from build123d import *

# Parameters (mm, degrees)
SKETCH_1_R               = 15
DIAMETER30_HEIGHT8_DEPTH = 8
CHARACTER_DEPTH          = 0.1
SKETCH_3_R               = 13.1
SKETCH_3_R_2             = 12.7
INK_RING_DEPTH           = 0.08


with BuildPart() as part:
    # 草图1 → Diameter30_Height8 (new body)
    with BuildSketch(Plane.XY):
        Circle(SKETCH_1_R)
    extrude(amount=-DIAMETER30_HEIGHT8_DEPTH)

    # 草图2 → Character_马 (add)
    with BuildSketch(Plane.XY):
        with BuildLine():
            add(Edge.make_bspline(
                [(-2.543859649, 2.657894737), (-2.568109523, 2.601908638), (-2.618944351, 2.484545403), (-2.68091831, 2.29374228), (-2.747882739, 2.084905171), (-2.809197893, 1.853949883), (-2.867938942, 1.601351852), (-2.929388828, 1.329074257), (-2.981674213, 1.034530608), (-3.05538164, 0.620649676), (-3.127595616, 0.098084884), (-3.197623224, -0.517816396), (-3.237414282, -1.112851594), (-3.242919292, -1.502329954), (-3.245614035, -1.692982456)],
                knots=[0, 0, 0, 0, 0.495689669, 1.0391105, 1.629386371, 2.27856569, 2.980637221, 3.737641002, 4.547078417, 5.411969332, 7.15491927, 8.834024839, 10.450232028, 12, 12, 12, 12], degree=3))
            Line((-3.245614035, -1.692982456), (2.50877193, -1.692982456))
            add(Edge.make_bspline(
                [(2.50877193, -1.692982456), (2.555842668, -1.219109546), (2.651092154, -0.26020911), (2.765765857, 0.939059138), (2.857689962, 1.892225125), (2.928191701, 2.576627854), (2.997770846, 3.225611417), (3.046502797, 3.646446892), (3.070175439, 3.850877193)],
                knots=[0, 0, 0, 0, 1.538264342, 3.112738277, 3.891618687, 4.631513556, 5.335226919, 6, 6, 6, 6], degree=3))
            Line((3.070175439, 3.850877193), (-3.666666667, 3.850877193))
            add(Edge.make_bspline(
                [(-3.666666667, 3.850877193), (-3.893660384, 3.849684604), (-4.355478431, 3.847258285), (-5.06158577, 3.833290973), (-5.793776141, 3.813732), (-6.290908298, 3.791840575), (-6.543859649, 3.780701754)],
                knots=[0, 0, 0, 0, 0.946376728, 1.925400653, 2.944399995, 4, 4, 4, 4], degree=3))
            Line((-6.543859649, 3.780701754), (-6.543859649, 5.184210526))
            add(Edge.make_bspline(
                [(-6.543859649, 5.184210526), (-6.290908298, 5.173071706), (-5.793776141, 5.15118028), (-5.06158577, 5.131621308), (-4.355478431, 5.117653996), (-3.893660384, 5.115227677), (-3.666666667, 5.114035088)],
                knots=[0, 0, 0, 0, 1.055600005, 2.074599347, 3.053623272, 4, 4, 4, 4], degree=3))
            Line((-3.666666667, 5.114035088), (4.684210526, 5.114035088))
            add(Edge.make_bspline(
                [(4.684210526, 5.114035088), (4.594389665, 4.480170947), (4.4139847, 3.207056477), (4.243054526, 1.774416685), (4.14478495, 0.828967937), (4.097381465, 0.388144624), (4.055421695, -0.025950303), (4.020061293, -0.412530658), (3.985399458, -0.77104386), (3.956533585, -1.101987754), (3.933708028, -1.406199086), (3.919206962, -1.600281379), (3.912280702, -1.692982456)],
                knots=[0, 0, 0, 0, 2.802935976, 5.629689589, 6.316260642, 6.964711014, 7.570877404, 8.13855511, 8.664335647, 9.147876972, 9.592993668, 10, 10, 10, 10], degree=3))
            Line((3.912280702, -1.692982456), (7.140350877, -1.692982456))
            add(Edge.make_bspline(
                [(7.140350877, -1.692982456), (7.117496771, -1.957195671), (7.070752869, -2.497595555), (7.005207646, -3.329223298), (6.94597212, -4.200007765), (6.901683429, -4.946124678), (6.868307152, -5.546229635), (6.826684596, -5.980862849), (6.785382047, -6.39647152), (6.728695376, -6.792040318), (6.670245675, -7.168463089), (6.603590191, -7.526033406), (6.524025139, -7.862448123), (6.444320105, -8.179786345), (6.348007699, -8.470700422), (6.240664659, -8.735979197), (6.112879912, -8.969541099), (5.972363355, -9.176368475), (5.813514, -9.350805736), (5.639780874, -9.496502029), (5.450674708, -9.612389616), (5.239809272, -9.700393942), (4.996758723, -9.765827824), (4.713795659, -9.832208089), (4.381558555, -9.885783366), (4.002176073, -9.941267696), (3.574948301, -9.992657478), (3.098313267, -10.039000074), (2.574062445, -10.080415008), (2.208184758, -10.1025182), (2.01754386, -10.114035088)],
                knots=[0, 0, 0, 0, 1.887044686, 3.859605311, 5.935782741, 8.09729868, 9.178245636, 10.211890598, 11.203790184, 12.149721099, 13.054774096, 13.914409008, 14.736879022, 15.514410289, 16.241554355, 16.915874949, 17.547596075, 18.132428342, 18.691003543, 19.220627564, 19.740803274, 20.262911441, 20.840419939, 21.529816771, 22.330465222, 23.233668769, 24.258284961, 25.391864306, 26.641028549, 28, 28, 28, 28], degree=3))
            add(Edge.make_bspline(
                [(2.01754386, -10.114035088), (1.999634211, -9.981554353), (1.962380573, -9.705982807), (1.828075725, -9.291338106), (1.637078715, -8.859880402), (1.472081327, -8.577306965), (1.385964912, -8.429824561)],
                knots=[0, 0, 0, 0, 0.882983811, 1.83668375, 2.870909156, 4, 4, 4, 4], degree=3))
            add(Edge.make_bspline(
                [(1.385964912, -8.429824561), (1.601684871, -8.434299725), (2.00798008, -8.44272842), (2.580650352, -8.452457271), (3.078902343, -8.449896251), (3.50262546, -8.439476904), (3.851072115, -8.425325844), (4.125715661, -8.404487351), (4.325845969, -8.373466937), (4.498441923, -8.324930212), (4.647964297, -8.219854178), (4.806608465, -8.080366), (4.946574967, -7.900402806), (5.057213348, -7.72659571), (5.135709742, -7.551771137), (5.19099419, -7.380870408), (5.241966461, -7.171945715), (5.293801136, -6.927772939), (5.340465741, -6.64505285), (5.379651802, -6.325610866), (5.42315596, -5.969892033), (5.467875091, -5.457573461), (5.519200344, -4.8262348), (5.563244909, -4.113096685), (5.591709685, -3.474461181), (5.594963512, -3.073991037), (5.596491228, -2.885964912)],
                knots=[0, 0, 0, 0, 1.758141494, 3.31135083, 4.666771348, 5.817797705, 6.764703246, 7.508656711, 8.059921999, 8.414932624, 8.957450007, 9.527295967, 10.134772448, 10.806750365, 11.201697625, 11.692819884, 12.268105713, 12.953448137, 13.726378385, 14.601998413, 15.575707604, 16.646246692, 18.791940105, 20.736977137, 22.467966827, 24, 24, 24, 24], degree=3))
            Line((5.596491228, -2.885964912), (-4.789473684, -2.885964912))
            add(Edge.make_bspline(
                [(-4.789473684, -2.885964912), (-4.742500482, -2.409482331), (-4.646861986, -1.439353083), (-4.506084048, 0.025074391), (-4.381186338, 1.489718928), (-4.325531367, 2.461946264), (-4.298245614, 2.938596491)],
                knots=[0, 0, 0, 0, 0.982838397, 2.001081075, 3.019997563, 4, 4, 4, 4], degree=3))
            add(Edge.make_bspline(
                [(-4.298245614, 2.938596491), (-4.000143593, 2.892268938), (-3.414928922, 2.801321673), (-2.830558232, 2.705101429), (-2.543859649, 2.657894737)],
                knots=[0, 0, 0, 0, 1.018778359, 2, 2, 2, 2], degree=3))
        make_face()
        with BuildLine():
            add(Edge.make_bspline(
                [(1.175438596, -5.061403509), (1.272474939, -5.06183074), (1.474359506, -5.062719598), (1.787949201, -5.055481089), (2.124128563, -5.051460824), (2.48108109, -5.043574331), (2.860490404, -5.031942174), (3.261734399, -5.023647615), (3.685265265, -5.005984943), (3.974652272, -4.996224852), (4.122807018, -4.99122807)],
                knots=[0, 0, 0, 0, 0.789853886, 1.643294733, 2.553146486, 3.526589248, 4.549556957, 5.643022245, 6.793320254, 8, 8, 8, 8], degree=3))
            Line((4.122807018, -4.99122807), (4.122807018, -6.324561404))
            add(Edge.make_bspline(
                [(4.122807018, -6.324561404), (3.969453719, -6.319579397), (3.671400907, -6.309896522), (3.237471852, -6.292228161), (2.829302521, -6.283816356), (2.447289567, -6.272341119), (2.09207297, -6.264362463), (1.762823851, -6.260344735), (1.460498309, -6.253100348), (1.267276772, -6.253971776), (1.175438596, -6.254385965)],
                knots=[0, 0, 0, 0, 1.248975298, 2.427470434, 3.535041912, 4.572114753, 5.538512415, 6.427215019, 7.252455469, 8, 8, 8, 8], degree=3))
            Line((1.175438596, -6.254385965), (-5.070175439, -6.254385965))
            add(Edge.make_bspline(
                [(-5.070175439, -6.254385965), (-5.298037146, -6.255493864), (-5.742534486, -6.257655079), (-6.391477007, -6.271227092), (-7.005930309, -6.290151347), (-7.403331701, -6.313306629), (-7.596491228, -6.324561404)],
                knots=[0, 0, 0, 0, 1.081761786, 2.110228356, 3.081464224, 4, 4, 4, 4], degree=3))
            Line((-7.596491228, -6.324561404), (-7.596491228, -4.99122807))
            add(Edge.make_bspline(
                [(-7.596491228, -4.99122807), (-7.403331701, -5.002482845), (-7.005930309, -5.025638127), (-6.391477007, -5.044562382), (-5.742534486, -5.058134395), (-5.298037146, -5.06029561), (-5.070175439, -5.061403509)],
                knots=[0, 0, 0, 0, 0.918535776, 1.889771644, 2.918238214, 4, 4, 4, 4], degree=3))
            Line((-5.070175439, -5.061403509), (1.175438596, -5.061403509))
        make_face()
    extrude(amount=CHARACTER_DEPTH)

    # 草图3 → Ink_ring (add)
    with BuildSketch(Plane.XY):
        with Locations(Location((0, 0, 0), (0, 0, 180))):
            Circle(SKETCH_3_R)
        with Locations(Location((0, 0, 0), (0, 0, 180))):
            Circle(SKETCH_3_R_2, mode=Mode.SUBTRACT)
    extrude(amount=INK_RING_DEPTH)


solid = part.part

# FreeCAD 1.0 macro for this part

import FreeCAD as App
import Part
import Sketcher

V = App.Vector

doc = App.newDocument("Part")
body = doc.addObject("PartDesign::Body", "Body")

# Sketch on XY plane
sketch1 = body.newObject("Sketcher::SketchObject", "Sketch")
sketch1.AttachmentSupport = (doc.getObject("XY_Plane"), [""])
sketch1.MapMode = "FlatFace"
sketch1.addGeometry(Part.Circle(V(0, 0, 0), V(0, 0, 1), 15), False)
sketch1.addConstraint(Sketcher.Constraint("Coincident", 0, 3, -1, 1))
sketch1.addConstraint(Sketcher.Constraint("Diameter", 0, 30.0))
pad1 = body.newObject("PartDesign::Pad", "Pad")
pad1.Profile = sketch1
pad1.Length = 8
pad1.Reversed = True

# Sketch on XY plane
sketch2 = body.newObject("Sketcher::SketchObject", "Sketch001")
sketch2.AttachmentSupport = (doc.getObject("XY_Plane"), [""])
sketch2.MapMode = "FlatFace"
sketch2.addGeometry(Part.BSplineCurve([V(-2.54386, 2.657895, 0), V(-2.56811, 2.601909, 0), V(-2.618944, 2.484545, 0), V(-2.680918, 2.293742, 0), V(-2.747883, 2.084905, 0), V(-2.809198, 1.85395, 0), V(-2.867939, 1.601352, 0), V(-2.929389, 1.329074, 0), V(-2.981674, 1.034531, 0), V(-3.055382, 0.62065, 0), V(-3.127596, 0.098085, 0), V(-3.197623, -0.517816, 0), V(-3.237414, -1.112852, 0), V(-3.242919, -1.50233, 0), V(-3.245614, -1.692982, 0)], [4, 1, 1, 1, 1, 1, 1, 1, 1, 1, 1, 1, 4], [0, 0.495689669, 1.0391105, 1.629386371, 2.27856569, 2.980637221, 3.737641002, 4.547078417, 5.411969332, 7.15491927, 8.834024839, 10.450232028, 12], False, 3, [1, 1, 1, 1, 1, 1, 1, 1, 1, 1, 1, 1, 1, 1, 1], False), False)
sketch2.addGeometry(Part.BSplineCurve([V(-4.298246, 2.938596, 0), V(-4.000144, 2.892269, 0), V(-3.414929, 2.801322, 0), V(-2.830558, 2.705101, 0), V(-2.54386, 2.657895, 0)], [4, 1, 4], [0, 1.018778359, 2], False, 3, [1, 1, 1, 1, 1], False), False)
sketch2.addGeometry(Part.BSplineCurve([V(-4.789474, -2.885965, 0), V(-4.7425, -2.409482, 0), V(-4.646862, -1.439353, 0), V(-4.506084, 0.025074, 0), V(-4.381186, 1.489719, 0), V(-4.325531, 2.461946, 0), V(-4.298246, 2.938596, 0)], [4, 1, 1, 1, 4], [0, 0.982838397, 2.001081075, 3.019997563, 4], False, 3, [1, 1, 1, 1, 1, 1, 1], False), False)
sketch2.addGeometry(Part.LineSegment(V(-4.789474, -2.885965, 0), V(5.596491, -2.885965, 0)), False)
sketch2.addGeometry(Part.BSplineCurve([V(1.385965, -8.429825, 0), V(1.601685, -8.4343, 0), V(2.00798, -8.442728, 0), V(2.58065, -8.452457, 0), V(3.078902, -8.449896, 0), V(3.502625, -8.439477, 0), V(3.851072, -8.425326, 0), V(4.125716, -8.404487, 0), V(4.325846, -8.373467, 0), V(4.498442, -8.32493, 0), V(4.647964, -8.219854, 0), V(4.806608, -8.080366, 0), V(4.946575, -7.900403, 0), V(5.057213, -7.726596, 0), V(5.13571, -7.551771, 0), V(5.190994, -7.38087, 0), V(5.241966, -7.171946, 0), V(5.293801, -6.927773, 0), V(5.340466, -6.645053, 0), V(5.379652, -6.325611, 0), V(5.423156, -5.969892, 0), V(5.467875, -5.457573, 0), V(5.5192, -4.826235, 0), V(5.563245, -4.113097, 0), V(5.59171, -3.474461, 0), V(5.594964, -3.073991, 0), V(5.596491, -2.885965, 0)], [4, 1, 1, 1, 1, 1, 1, 1, 1, 1, 1, 1, 1, 1, 1, 1, 1, 1, 1, 1, 1, 1, 1, 1, 4], [0, 1.758141494, 3.31135083, 4.666771348, 5.817797705, 6.764703246, 7.508656711, 8.059921999, 8.414932624, 8.957450007, 9.527295967, 10.134772448, 10.806750365, 11.201697625, 11.692819884, 12.268105713, 12.953448137, 13.726378385, 14.601998413, 15.575707604, 16.646246692, 18.791940105, 20.736977137, 22.467966827, 24], False, 3, [1, 1, 1, 1, 1, 1, 1, 1, 1, 1, 1, 1, 1, 1, 1, 1, 1, 1, 1, 1, 1, 1, 1, 1, 1, 1, 1], False), False)
sketch2.addGeometry(Part.BSplineCurve([V(2.017544, -10.114035, 0), V(1.999634, -9.981554, 0), V(1.962381, -9.705983, 0), V(1.828076, -9.291338, 0), V(1.637079, -8.85988, 0), V(1.472081, -8.577307, 0), V(1.385965, -8.429825, 0)], [4, 1, 1, 1, 4], [0, 0.882983811, 1.83668375, 2.870909156, 4], False, 3, [1, 1, 1, 1, 1, 1, 1], False), False)
sketch2.addGeometry(Part.BSplineCurve([V(7.140351, -1.692982, 0), V(7.117497, -1.957196, 0), V(7.070753, -2.497596, 0), V(7.005208, -3.329223, 0), V(6.945972, -4.200008, 0), V(6.901683, -4.946125, 0), V(6.868307, -5.54623, 0), V(6.826685, -5.980863, 0), V(6.785382, -6.396472, 0), V(6.728695, -6.79204, 0), V(6.670246, -7.168463, 0), V(6.60359, -7.526033, 0), V(6.524025, -7.862448, 0), V(6.44432, -8.179786, 0), V(6.348008, -8.4707, 0), V(6.240665, -8.735979, 0), V(6.11288, -8.969541, 0), V(5.972363, -9.176368, 0), V(5.813514, -9.350806, 0), V(5.639781, -9.496502, 0), V(5.450675, -9.61239, 0), V(5.239809, -9.700394, 0), V(4.996759, -9.765828, 0), V(4.713796, -9.832208, 0), V(4.381559, -9.885783, 0), V(4.002176, -9.941268, 0), V(3.574948, -9.992657, 0), V(3.098313, -10.039, 0), V(2.574062, -10.080415, 0), V(2.208185, -10.102518, 0), V(2.017544, -10.114035, 0)], [4, 1, 1, 1, 1, 1, 1, 1, 1, 1, 1, 1, 1, 1, 1, 1, 1, 1, 1, 1, 1, 1, 1, 1, 1, 1, 1, 1, 4], [0, 1.887044686, 3.859605311, 5.935782741, 8.09729868, 9.178245636, 10.211890598, 11.203790184, 12.149721099, 13.054774096, 13.914409008, 14.736879022, 15.514410289, 16.241554355, 16.915874949, 17.547596075, 18.132428342, 18.691003543, 19.220627564, 19.740803274, 20.262911441, 20.840419939, 21.529816771, 22.330465222, 23.233668769, 24.258284961, 25.391864306, 26.641028549, 28], False, 3, [1, 1, 1, 1, 1, 1, 1, 1, 1, 1, 1, 1, 1, 1, 1, 1, 1, 1, 1, 1, 1, 1, 1, 1, 1, 1, 1, 1, 1, 1, 1], False), False)
sketch2.addGeometry(Part.LineSegment(V(7.140351, -1.692982, 0), V(3.912281, -1.692982, 0)), False)
sketch2.addGeometry(Part.BSplineCurve([V(4.684211, 5.114035, 0), V(4.59439, 4.480171, 0), V(4.413985, 3.207056, 0), V(4.243055, 1.774417, 0), V(4.144785, 0.828968, 0), V(4.097381, 0.388145, 0), V(4.055422, -0.02595, 0), V(4.020061, -0.412531, 0), V(3.985399, -0.771044, 0), V(3.956534, -1.101988, 0), V(3.933708, -1.406199, 0), V(3.919207, -1.600281, 0), V(3.912281, -1.692982, 0)], [4, 1, 1, 1, 1, 1, 1, 1, 1, 1, 4], [0, 2.802935976, 5.629689589, 6.316260642, 6.964711014, 7.570877404, 8.13855511, 8.664335647, 9.147876972, 9.592993668, 10], False, 3, [1, 1, 1, 1, 1, 1, 1, 1, 1, 1, 1, 1, 1], False), False)
sketch2.addGeometry(Part.LineSegment(V(4.684211, 5.114035, 0), V(-3.666667, 5.114035, 0)), False)
sketch2.addGeometry(Part.BSplineCurve([V(-6.54386, 5.184211, 0), V(-6.290908, 5.173072, 0), V(-5.793776, 5.15118, 0), V(-5.061586, 5.131621, 0), V(-4.355478, 5.117654, 0), V(-3.89366, 5.115228, 0), V(-3.666667, 5.114035, 0)], [4, 1, 1, 1, 4], [0, 1.055600005, 2.074599347, 3.053623272, 4], False, 3, [1, 1, 1, 1, 1, 1, 1], False), False)
sketch2.addGeometry(Part.LineSegment(V(-6.54386, 5.184211, 0), V(-6.54386, 3.780702, 0)), False)
sketch2.addGeometry(Part.BSplineCurve([V(-3.666667, 3.850877, 0), V(-3.89366, 3.849685, 0), V(-4.355478, 3.847258, 0), V(-5.061586, 3.833291, 0), V(-5.793776, 3.813732, 0), V(-6.290908, 3.791841, 0), V(-6.54386, 3.780702, 0)], [4, 1, 1, 1, 4], [0, 0.946376728, 1.925400653, 2.944399995, 4], False, 3, [1, 1, 1, 1, 1, 1, 1], False), False)
sketch2.addGeometry(Part.LineSegment(V(-3.666667, 3.850877, 0), V(3.070175, 3.850877, 0)), False)
sketch2.addGeometry(Part.BSplineCurve([V(2.508772, -1.692982, 0), V(2.555843, -1.21911, 0), V(2.651092, -0.260209, 0), V(2.765766, 0.939059, 0), V(2.85769, 1.892225, 0), V(2.928192, 2.576628, 0), V(2.997771, 3.225611, 0), V(3.046503, 3.646447, 0), V(3.070175, 3.850877, 0)], [4, 1, 1, 1, 1, 1, 4], [0, 1.538264342, 3.112738277, 3.891618687, 4.631513556, 5.335226919, 6], False, 3, [1, 1, 1, 1, 1, 1, 1, 1, 1], False), False)
sketch2.addGeometry(Part.LineSegment(V(2.508772, -1.692982, 0), V(-3.245614, -1.692982, 0)), False)
sketch2.addGeometry(Part.BSplineCurve([V(1.175439, -5.061404, 0), V(1.272475, -5.061831, 0), V(1.47436, -5.06272, 0), V(1.787949, -5.055481, 0), V(2.124129, -5.051461, 0), V(2.481081, -5.043574, 0), V(2.86049, -5.031942, 0), V(3.261734, -5.023648, 0), V(3.685265, -5.005985, 0), V(3.974652, -4.996225, 0), V(4.122807, -4.991228, 0)], [4, 1, 1, 1, 1, 1, 1, 1, 4], [0, 0.789853886, 1.643294733, 2.553146486, 3.526589248, 4.549556957, 5.643022245, 6.793320254, 8], False, 3, [1, 1, 1, 1, 1, 1, 1, 1, 1, 1, 1], False), False)
sketch2.addGeometry(Part.LineSegment(V(1.175439, -5.061404, 0), V(-5.070175, -5.061404, 0)), False)
sketch2.addGeometry(Part.BSplineCurve([V(-7.596491, -4.991228, 0), V(-7.403332, -5.002483, 0), V(-7.00593, -5.025638, 0), V(-6.391477, -5.044562, 0), V(-5.742534, -5.058134, 0), V(-5.298037, -5.060296, 0), V(-5.070175, -5.061404, 0)], [4, 1, 1, 1, 4], [0, 0.918535776, 1.889771644, 2.918238214, 4], False, 3, [1, 1, 1, 1, 1, 1, 1], False), False)
sketch2.addGeometry(Part.LineSegment(V(-7.596491, -4.991228, 0), V(-7.596491, -6.324561, 0)), False)
sketch2.addGeometry(Part.BSplineCurve([V(-5.070175, -6.254386, 0), V(-5.298037, -6.255494, 0), V(-5.742534, -6.257655, 0), V(-6.391477, -6.271227, 0), V(-7.00593, -6.290151, 0), V(-7.403332, -6.313307, 0), V(-7.596491, -6.324561, 0)], [4, 1, 1, 1, 4], [0, 1.081761786, 2.110228356, 3.081464224, 4], False, 3, [1, 1, 1, 1, 1, 1, 1], False), False)
sketch2.addGeometry(Part.LineSegment(V(-5.070175, -6.254386, 0), V(1.175439, -6.254386, 0)), False)
sketch2.addGeometry(Part.BSplineCurve([V(4.122807, -6.324561, 0), V(3.969454, -6.319579, 0), V(3.671401, -6.309897, 0), V(3.237472, -6.292228, 0), V(2.829303, -6.283816, 0), V(2.44729, -6.272341, 0), V(2.092073, -6.264362, 0), V(1.762824, -6.260345, 0), V(1.460498, -6.2531, 0), V(1.267277, -6.253972, 0), V(1.175439, -6.254386, 0)], [4, 1, 1, 1, 1, 1, 1, 1, 4], [0, 1.248975298, 2.427470434, 3.535041912, 4.572114753, 5.538512415, 6.427215019, 7.252455469, 8], False, 3, [1, 1, 1, 1, 1, 1, 1, 1, 1, 1, 1], False), False)
sketch2.addGeometry(Part.LineSegment(V(4.122807, -6.324561, 0), V(4.122807, -4.991228, 0)), False)
sketch2.addConstraint(Sketcher.Constraint("Block", 0))
sketch2.addConstraint(Sketcher.Constraint("Block", 1))
sketch2.addConstraint(Sketcher.Constraint("Block", 2))
sketch2.addConstraint(Sketcher.Constraint("Block", 4))
sketch2.addConstraint(Sketcher.Constraint("Block", 5))
sketch2.addConstraint(Sketcher.Constraint("Block", 6))
sketch2.addConstraint(Sketcher.Constraint("Block", 8))
sketch2.addConstraint(Sketcher.Constraint("Block", 10))
sketch2.addConstraint(Sketcher.Constraint("Block", 12))
sketch2.addConstraint(Sketcher.Constraint("Block", 14))
sketch2.addConstraint(Sketcher.Constraint("Block", 16))
sketch2.addConstraint(Sketcher.Constraint("Block", 18))
sketch2.addConstraint(Sketcher.Constraint("Block", 20))
sketch2.addConstraint(Sketcher.Constraint("Block", 22))
sketch2.addConstraint(Sketcher.Constraint("Coincident", 2, 1, 3, 1))
sketch2.addConstraint(Sketcher.Constraint("Coincident", 3, 2, 4, 2))
sketch2.addConstraint(Sketcher.Constraint("Coincident", 6, 1, 7, 1))
sketch2.addConstraint(Sketcher.Constraint("Coincident", 7, 2, 8, 2))
sketch2.addConstraint(Sketcher.Constraint("Coincident", 8, 1, 9, 1))
sketch2.addConstraint(Sketcher.Constraint("Coincident", 9, 2, 10, 2))
sketch2.addConstraint(Sketcher.Constraint("Coincident", 10, 1, 11, 1))
sketch2.addConstraint(Sketcher.Constraint("Coincident", 11, 2, 12, 2))
sketch2.addConstraint(Sketcher.Constraint("Coincident", 12, 1, 13, 1))
sketch2.addConstraint(Sketcher.Constraint("Coincident", 13, 2, 14, 2))
sketch2.addConstraint(Sketcher.Constraint("Coincident", 14, 1, 15, 1))
sketch2.addConstraint(Sketcher.Constraint("Coincident", 15, 2, 0, 2))
sketch2.addConstraint(Sketcher.Constraint("Coincident", 16, 1, 17, 1))
sketch2.addConstraint(Sketcher.Constraint("Coincident", 17, 2, 18, 2))
sketch2.addConstraint(Sketcher.Constraint("Coincident", 18, 1, 19, 1))
sketch2.addConstraint(Sketcher.Constraint("Coincident", 19, 2, 20, 2))
sketch2.addConstraint(Sketcher.Constraint("Coincident", 20, 1, 21, 1))
sketch2.addConstraint(Sketcher.Constraint("Coincident", 21, 2, 22, 2))
sketch2.addConstraint(Sketcher.Constraint("Coincident", 22, 1, 23, 1))
sketch2.addConstraint(Sketcher.Constraint("Coincident", 23, 2, 16, 2))
pad2 = body.newObject("PartDesign::Pad", "Pad001")
pad2.Profile = sketch2
pad2.Length = 0.1

# Sketch on XY plane
sketch3 = body.newObject("Sketcher::SketchObject", "Sketch002")
sketch3.AttachmentSupport = (doc.getObject("XY_Plane"), [""])
sketch3.MapMode = "FlatFace"
sketch3.addGeometry(Part.Circle(V(0, 0, 0), V(0, 0, 1), 13), False)
sketch3.addGeometry(Part.Circle(V(0, 0, 0), V(0, 0, 1), 13), False)
sketch3.addConstraint(Sketcher.Constraint("Coincident", 0, 3, -1, 1))
sketch3.addConstraint(Sketcher.Constraint("Coincident", 1, 3, -1, 1))
sketch3.addConstraint(Sketcher.Constraint("Diameter", 0, 26.2))
sketch3.addConstraint(Sketcher.Constraint("Diameter", 1, 25.4))
pad3 = body.newObject("PartDesign::Pad", "Pad002")
pad3.Profile = sketch3
pad3.Length = 0.08

doc.recompute()
